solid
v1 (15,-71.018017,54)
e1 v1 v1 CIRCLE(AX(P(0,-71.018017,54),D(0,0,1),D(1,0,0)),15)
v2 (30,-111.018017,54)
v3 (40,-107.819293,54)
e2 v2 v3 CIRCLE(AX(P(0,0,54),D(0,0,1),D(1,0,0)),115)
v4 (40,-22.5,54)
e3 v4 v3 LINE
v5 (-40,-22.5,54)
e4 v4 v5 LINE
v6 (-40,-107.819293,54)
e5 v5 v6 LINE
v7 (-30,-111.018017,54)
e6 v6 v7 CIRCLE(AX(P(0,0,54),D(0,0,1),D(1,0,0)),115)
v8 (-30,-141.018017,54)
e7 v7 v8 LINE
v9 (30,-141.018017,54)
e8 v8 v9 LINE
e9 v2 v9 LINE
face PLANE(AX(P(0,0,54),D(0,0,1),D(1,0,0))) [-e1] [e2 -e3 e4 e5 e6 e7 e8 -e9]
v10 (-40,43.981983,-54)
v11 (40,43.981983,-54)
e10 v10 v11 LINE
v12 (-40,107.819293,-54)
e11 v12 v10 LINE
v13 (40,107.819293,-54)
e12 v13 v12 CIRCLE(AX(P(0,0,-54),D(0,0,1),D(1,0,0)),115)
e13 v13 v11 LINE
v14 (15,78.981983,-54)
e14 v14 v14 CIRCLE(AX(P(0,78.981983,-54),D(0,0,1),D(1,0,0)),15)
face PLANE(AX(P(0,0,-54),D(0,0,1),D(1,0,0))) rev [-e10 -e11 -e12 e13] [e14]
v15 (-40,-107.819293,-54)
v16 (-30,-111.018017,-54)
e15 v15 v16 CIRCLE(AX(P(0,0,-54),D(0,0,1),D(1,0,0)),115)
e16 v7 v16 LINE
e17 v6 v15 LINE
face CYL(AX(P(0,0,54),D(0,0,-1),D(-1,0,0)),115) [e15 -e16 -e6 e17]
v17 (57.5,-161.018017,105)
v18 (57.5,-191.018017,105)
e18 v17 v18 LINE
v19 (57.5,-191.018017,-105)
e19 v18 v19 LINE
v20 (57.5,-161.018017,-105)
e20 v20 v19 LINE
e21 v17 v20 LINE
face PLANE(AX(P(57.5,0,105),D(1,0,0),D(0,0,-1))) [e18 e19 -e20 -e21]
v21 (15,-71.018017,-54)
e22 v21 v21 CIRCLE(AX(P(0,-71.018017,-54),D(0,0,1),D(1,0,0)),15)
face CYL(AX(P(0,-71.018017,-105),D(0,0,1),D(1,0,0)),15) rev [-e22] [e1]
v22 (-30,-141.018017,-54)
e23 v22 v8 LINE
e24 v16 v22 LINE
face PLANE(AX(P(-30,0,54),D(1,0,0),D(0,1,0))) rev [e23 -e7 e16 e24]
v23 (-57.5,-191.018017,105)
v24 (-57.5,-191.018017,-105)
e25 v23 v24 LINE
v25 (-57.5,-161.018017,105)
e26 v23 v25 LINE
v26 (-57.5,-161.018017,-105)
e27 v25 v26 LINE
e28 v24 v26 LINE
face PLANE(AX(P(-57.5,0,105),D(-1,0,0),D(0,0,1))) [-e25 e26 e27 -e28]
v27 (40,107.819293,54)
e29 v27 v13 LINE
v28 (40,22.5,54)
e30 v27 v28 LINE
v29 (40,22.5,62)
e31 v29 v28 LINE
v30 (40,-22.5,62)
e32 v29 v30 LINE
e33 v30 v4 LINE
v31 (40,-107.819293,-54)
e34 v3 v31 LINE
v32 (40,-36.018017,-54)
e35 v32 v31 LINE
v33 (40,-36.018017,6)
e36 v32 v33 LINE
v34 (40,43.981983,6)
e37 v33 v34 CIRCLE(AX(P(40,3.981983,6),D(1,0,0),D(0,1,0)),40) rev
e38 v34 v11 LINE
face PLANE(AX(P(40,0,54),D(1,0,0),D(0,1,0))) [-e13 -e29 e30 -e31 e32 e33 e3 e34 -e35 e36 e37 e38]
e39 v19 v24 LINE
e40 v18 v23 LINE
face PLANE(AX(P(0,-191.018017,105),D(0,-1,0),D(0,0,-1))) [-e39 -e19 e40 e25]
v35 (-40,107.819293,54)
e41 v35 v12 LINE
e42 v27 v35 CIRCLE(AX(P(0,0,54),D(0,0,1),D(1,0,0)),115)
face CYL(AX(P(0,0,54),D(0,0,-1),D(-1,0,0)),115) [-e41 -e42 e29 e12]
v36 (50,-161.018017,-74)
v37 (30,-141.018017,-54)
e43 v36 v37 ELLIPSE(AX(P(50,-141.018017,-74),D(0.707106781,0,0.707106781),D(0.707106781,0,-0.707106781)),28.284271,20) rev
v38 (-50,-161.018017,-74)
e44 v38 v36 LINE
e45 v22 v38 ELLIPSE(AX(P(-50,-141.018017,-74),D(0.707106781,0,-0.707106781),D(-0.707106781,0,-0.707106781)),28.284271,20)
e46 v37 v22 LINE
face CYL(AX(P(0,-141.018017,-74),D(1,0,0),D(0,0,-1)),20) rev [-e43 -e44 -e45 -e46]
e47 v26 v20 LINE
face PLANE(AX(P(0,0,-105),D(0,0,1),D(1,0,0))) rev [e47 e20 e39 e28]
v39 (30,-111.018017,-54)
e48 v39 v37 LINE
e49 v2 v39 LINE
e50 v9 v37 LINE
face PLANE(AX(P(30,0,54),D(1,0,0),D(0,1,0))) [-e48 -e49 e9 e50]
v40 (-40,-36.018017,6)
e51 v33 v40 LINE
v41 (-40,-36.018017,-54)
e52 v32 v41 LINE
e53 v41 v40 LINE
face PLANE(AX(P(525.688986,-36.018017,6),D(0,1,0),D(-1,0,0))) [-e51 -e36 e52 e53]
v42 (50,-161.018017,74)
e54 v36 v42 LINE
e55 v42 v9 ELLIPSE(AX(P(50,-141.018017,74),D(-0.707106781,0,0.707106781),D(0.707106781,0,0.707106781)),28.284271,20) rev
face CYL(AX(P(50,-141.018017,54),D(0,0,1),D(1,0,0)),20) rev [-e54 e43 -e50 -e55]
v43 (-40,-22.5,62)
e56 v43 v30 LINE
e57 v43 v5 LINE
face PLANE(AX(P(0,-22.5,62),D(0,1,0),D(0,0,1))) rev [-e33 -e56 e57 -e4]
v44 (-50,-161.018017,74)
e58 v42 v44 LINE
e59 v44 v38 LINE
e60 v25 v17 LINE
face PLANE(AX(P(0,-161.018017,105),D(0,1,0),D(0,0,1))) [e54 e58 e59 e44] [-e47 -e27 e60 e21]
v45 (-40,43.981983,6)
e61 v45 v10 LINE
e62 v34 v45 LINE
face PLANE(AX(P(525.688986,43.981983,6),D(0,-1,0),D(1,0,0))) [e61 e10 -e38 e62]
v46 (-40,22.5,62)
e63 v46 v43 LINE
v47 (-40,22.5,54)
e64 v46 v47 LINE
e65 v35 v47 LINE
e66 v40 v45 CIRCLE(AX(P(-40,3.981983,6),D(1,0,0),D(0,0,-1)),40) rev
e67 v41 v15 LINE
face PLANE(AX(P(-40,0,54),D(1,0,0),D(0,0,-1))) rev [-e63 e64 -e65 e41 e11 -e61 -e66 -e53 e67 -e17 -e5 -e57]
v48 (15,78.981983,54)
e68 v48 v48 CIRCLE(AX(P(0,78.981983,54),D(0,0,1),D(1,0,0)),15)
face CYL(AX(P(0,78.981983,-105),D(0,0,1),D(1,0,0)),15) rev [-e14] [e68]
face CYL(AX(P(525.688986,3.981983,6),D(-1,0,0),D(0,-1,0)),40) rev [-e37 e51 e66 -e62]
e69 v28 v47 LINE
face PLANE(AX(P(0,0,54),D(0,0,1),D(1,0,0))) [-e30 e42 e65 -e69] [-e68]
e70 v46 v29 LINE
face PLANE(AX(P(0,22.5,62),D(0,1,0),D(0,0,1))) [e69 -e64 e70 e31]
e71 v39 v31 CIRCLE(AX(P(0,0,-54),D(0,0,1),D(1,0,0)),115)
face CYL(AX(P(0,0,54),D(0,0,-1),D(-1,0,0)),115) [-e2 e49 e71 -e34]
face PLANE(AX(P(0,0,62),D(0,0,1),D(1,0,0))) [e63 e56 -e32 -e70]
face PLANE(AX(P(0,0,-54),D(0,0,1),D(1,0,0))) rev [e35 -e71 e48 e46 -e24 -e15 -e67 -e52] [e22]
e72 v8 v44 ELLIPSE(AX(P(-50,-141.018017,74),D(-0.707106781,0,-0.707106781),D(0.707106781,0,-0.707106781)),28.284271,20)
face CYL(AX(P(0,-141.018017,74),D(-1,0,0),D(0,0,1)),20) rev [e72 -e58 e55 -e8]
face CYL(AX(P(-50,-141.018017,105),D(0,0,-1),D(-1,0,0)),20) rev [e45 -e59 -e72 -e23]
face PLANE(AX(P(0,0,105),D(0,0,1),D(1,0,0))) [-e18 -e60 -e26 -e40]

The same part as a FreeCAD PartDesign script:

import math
import FreeCAD as App
import Part
import Sketcher
from FreeCAD import Vector


def edges_at(feature, points):
    """Names of the edges that pass closest to the given points."""
    edges = feature.Shape.Edges
    near = lambda p: min(range(len(edges)), key=lambda i: edges[i].distToShape(Part.Vertex(*p))[0])
    return sorted({f"Edge{near(p) + 1}" for p in points})

doc = App.newDocument("Part")
body = doc.addObject("PartDesign::Body", "Body")

sketch1 = body.newObject("Sketcher::SketchObject", "Sketch")
sketch1.AttachmentSupport = (doc.getObject("XY_Plane"), [""])
sketch1.MapMode = "FlatFace"
sketch1.addGeometry([
    Part.LineSegment(Vector(-57.5, -161.018017, 0), Vector(-57.5, -191.018017, 0)),
    Part.LineSegment(Vector(-57.5, -191.018017, 0), Vector(57.5, -191.018017, 0)),
    Part.LineSegment(Vector(57.5, -191.018017, 0), Vector(57.5, -161.018017, 0)),
    Part.LineSegment(Vector(57.5, -161.018017, 0), Vector(-57.5, -161.018017, 0)),
], False)
sketch1.addConstraint([
    Sketcher.Constraint("Coincident", 0, 2, 1, 1),
    Sketcher.Constraint("Coincident", 1, 2, 2, 1),
    Sketcher.Constraint("Coincident", 2, 2, 3, 1),
    Sketcher.Constraint("Coincident", 3, 2, 0, 1),
    Sketcher.Constraint("Vertical", 0),
    Sketcher.Constraint("Horizontal", 1),
    Sketcher.Constraint("Vertical", 2),
    Sketcher.Constraint("Horizontal", 3),
    Sketcher.Constraint("DistanceX", 1, 1, 1, 2, 115.0),
    Sketcher.Constraint("DistanceY", 0, 2, 0, 1, 30.0),
    Sketcher.Constraint("DistanceX", 0, 2, -1, 1, 57.5),
    Sketcher.Constraint("DistanceY", 0, 2, -1, 1, 191.018017),
])
pad1 = body.newObject("PartDesign::Pad", "Pad")
pad1.Profile = sketch1
pad1.Length = 210
pad1.Midplane = True

sketch2 = body.newObject("Sketcher::SketchObject", "Sketch001")
sketch2.AttachmentSupport = (doc.getObject("XY_Plane"), [""])
sketch2.MapMode = "FlatFace"
sketch2.addGeometry([
    Part.LineSegment(Vector(-40, 107.819293, 0), Vector(-40, -107.819293, 0)),
    Part.ArcOfCircle(Part.Circle(Vector(0, 0, 0), Vector(0, 0, 1), 115), math.radians(-110.354406), math.radians(-105.121665)),
    Part.LineSegment(Vector(-30, -111.018017, 0), Vector(-30, -161.018017, 0)),
    Part.LineSegment(Vector(-30, -161.018017, 0), Vector(30, -161.018017, 0)),
    Part.LineSegment(Vector(30, -161.018017, 0), Vector(30, -111.018017, 0)),
    Part.ArcOfCircle(Part.Circle(Vector(0, 0, 0), Vector(0, 0, 1), 115), math.radians(-74.878335), math.radians(-69.645594)),
    Part.LineSegment(Vector(40, -107.819293, 0), Vector(40, 107.819293, 0)),
    Part.ArcOfCircle(Part.Circle(Vector(0, 0, 0), Vector(0, 0, 1), 115), math.radians(69.645594), math.radians(110.354406)),
], False)
sketch2.addConstraint([
    Sketcher.Constraint("Coincident", 0, 2, 1, 1),
    Sketcher.Constraint("Coincident", 1, 2, 2, 1),
    Sketcher.Constraint("Coincident", 2, 2, 3, 1),
    Sketcher.Constraint("Coincident", 3, 2, 4, 1),
    Sketcher.Constraint("Coincident", 4, 2, 5, 1),
    Sketcher.Constraint("Coincident", 5, 2, 6, 1),
    Sketcher.Constraint("Coincident", 6, 2, 7, 1),
    Sketcher.Constraint("Coincident", 7, 2, 0, 1),
    Sketcher.Constraint("Vertical", 0),
    Sketcher.Constraint("Vertical", 2),
    Sketcher.Constraint("Horizontal", 3),
    Sketcher.Constraint("Vertical", 4),
    Sketcher.Constraint("Vertical", 6),
    Sketcher.Constraint("Coincident", 1, 3, -1, 1),
    Sketcher.Constraint("Coincident", 5, 3, -1, 1),
    Sketcher.Constraint("Coincident", 7, 3, -1, 1),
    Sketcher.Constraint("Equal", 1, 5),
    Sketcher.Constraint("Equal", 5, 7),
    Sketcher.Constraint("Horizontal", 1, 2, 4, 2),
    Sketcher.Constraint("Horizontal", 0, 2, 5, 2),
    Sketcher.Constraint("Radius", 1, 115.0),
    Sketcher.Constraint("DistanceX", 3, 1, 3, 2, 60.0),
    Sketcher.Constraint("DistanceY", 2, 2, 2, 1, 50.0),
    Sketcher.Constraint("DistanceX", 0, 2, -1, 1, 40.0),
])
pad2 = body.newObject("PartDesign::Pad", "Pad001")
pad2.Profile = sketch2
pad2.Length = 108
pad2.Midplane = True

sketch3 = body.newObject("Sketcher::SketchObject", "Sketch002")
sketch3.AttachmentSupport = (doc.getObject("XY_Plane"), [""])
sketch3.MapMode = "FlatFace"
sketch3.addGeometry([
    Part.LineSegment(Vector(-40, 22.5, 0), Vector(-40, -22.5, 0)),
    Part.LineSegment(Vector(-40, -22.5, 0), Vector(40, -22.5, 0)),
    Part.LineSegment(Vector(40, -22.5, 0), Vector(40, 22.5, 0)),
    Part.LineSegment(Vector(40, 22.5, 0), Vector(-40, 22.5, 0)),
], False)
sketch3.addConstraint([
    Sketcher.Constraint("Coincident", 0, 2, 1, 1),
    Sketcher.Constraint("Coincident", 1, 2, 2, 1),
    Sketcher.Constraint("Coincident", 2, 2, 3, 1),
    Sketcher.Constraint("Coincident", 3, 2, 0, 1),
    Sketcher.Constraint("Vertical", 0),
    Sketcher.Constraint("Horizontal", 1),
    Sketcher.Constraint("Vertical", 2),
    Sketcher.Constraint("Horizontal", 3),
    Sketcher.Constraint("Symmetric", 0, 2, 2, 2, -1, 1),
    Sketcher.Constraint("DistanceX", 1, 1, 1, 2, 80.0),
    Sketcher.Constraint("DistanceY", 0, 2, 0, 1, 45.0),
])
pad3 = body.newObject("PartDesign::Pad", "Pad002")
pad3.Profile = sketch3
pad3.Length = 62

sketch4 = body.newObject("Sketcher::SketchObject", "Sketch003")
sketch4.AttachmentSupport = (doc.getObject("YZ_Plane"), [""])
sketch4.MapMode = "FlatFace"
sketch4.AttachmentOffset = App.Placement(Vector(0, 0, 40), App.Rotation())
sketch4.addGeometry([
    Part.LineSegment(Vector(43.981983, -54, 0), Vector(43.981983, 6, 0)),
    Part.ArcOfCircle(Part.Circle(Vector(3.981983, 6, 0), Vector(0, 0, 1), 40), math.radians(0), math.radians(180)),
    Part.LineSegment(Vector(-36.018017, 6, 0), Vector(-36.018017, -54, 0)),
    Part.LineSegment(Vector(-36.018017, -54, 0), Vector(43.981983, -54, 0)),
], False)
sketch4.addConstraint([
    Sketcher.Constraint("Tangent", 0, 2, 1, 1),
    Sketcher.Constraint("Tangent", 1, 2, 2, 1),
    Sketcher.Constraint("Coincident", 2, 2, 3, 1),
    Sketcher.Constraint("Coincident", 3, 2, 0, 1),
    Sketcher.Constraint("Vertical", 0),
    Sketcher.Constraint("Vertical", 2),
    Sketcher.Constraint("Horizontal", 3),
    Sketcher.Constraint("Radius", 1, 40.0),
    Sketcher.Constraint("DistanceY", 0, 1, 0, 2, 60.0),
    Sketcher.Constraint("DistanceY", -1, 1, 1, 3, 6.0),
    Sketcher.Constraint("DistanceX", -1, 1, 1, 3, 3.981983),
])
pocket1 = body.newObject("PartDesign::Pocket", "Pocket")
pocket1.Profile = sketch4
pocket1.Type = "ThroughAll"
pocket1.Midplane = True
doc.recompute()

fillet = body.newObject("PartDesign::Fillet", "Fillet")
fillet.Base = (pocket1, edges_at(pocket1, [
    (0, -161.018, -54),
    (-30, -161.018, 0),
    (30, -161.018, 0),
    (0, -161.018, 54),
]))
fillet.Radius = 20

sketch5 = body.newObject("Sketcher::SketchObject", "Sketch004")
sketch5.AttachmentSupport = (doc.getObject("XY_Plane"), [""])
sketch5.MapMode = "FlatFace"
sketch5.AttachmentOffset = App.Placement(Vector(0, 0, 54), App.Rotation())
sketch5.addGeometry([
    Part.Circle(Vector(0, -71.018017, 0), Vector(0, 0, 1), 15),
    Part.Circle(Vector(0, 78.981983, 0), Vector(0, 0, 1), 15),
], False)
sketch5.addConstraint([
    Sketcher.Constraint("Equal", 0, 1),
    Sketcher.Constraint("PointOnObject", 0, 3, -2),
    Sketcher.Constraint("PointOnObject", 1, 3, -2),
    Sketcher.Constraint("Diameter", 0, 30.0),
    Sketcher.Constraint("DistanceY", 0, 3, 1, 3, 150.0),
    Sketcher.Constraint("DistanceY", 0, 3, -1, 1, 71.018017),
])
pocket2 = body.newObject("PartDesign::Pocket", "Pocket001")
pocket2.Profile = sketch5
pocket2.Type = "ThroughAll"

doc.recompute()
